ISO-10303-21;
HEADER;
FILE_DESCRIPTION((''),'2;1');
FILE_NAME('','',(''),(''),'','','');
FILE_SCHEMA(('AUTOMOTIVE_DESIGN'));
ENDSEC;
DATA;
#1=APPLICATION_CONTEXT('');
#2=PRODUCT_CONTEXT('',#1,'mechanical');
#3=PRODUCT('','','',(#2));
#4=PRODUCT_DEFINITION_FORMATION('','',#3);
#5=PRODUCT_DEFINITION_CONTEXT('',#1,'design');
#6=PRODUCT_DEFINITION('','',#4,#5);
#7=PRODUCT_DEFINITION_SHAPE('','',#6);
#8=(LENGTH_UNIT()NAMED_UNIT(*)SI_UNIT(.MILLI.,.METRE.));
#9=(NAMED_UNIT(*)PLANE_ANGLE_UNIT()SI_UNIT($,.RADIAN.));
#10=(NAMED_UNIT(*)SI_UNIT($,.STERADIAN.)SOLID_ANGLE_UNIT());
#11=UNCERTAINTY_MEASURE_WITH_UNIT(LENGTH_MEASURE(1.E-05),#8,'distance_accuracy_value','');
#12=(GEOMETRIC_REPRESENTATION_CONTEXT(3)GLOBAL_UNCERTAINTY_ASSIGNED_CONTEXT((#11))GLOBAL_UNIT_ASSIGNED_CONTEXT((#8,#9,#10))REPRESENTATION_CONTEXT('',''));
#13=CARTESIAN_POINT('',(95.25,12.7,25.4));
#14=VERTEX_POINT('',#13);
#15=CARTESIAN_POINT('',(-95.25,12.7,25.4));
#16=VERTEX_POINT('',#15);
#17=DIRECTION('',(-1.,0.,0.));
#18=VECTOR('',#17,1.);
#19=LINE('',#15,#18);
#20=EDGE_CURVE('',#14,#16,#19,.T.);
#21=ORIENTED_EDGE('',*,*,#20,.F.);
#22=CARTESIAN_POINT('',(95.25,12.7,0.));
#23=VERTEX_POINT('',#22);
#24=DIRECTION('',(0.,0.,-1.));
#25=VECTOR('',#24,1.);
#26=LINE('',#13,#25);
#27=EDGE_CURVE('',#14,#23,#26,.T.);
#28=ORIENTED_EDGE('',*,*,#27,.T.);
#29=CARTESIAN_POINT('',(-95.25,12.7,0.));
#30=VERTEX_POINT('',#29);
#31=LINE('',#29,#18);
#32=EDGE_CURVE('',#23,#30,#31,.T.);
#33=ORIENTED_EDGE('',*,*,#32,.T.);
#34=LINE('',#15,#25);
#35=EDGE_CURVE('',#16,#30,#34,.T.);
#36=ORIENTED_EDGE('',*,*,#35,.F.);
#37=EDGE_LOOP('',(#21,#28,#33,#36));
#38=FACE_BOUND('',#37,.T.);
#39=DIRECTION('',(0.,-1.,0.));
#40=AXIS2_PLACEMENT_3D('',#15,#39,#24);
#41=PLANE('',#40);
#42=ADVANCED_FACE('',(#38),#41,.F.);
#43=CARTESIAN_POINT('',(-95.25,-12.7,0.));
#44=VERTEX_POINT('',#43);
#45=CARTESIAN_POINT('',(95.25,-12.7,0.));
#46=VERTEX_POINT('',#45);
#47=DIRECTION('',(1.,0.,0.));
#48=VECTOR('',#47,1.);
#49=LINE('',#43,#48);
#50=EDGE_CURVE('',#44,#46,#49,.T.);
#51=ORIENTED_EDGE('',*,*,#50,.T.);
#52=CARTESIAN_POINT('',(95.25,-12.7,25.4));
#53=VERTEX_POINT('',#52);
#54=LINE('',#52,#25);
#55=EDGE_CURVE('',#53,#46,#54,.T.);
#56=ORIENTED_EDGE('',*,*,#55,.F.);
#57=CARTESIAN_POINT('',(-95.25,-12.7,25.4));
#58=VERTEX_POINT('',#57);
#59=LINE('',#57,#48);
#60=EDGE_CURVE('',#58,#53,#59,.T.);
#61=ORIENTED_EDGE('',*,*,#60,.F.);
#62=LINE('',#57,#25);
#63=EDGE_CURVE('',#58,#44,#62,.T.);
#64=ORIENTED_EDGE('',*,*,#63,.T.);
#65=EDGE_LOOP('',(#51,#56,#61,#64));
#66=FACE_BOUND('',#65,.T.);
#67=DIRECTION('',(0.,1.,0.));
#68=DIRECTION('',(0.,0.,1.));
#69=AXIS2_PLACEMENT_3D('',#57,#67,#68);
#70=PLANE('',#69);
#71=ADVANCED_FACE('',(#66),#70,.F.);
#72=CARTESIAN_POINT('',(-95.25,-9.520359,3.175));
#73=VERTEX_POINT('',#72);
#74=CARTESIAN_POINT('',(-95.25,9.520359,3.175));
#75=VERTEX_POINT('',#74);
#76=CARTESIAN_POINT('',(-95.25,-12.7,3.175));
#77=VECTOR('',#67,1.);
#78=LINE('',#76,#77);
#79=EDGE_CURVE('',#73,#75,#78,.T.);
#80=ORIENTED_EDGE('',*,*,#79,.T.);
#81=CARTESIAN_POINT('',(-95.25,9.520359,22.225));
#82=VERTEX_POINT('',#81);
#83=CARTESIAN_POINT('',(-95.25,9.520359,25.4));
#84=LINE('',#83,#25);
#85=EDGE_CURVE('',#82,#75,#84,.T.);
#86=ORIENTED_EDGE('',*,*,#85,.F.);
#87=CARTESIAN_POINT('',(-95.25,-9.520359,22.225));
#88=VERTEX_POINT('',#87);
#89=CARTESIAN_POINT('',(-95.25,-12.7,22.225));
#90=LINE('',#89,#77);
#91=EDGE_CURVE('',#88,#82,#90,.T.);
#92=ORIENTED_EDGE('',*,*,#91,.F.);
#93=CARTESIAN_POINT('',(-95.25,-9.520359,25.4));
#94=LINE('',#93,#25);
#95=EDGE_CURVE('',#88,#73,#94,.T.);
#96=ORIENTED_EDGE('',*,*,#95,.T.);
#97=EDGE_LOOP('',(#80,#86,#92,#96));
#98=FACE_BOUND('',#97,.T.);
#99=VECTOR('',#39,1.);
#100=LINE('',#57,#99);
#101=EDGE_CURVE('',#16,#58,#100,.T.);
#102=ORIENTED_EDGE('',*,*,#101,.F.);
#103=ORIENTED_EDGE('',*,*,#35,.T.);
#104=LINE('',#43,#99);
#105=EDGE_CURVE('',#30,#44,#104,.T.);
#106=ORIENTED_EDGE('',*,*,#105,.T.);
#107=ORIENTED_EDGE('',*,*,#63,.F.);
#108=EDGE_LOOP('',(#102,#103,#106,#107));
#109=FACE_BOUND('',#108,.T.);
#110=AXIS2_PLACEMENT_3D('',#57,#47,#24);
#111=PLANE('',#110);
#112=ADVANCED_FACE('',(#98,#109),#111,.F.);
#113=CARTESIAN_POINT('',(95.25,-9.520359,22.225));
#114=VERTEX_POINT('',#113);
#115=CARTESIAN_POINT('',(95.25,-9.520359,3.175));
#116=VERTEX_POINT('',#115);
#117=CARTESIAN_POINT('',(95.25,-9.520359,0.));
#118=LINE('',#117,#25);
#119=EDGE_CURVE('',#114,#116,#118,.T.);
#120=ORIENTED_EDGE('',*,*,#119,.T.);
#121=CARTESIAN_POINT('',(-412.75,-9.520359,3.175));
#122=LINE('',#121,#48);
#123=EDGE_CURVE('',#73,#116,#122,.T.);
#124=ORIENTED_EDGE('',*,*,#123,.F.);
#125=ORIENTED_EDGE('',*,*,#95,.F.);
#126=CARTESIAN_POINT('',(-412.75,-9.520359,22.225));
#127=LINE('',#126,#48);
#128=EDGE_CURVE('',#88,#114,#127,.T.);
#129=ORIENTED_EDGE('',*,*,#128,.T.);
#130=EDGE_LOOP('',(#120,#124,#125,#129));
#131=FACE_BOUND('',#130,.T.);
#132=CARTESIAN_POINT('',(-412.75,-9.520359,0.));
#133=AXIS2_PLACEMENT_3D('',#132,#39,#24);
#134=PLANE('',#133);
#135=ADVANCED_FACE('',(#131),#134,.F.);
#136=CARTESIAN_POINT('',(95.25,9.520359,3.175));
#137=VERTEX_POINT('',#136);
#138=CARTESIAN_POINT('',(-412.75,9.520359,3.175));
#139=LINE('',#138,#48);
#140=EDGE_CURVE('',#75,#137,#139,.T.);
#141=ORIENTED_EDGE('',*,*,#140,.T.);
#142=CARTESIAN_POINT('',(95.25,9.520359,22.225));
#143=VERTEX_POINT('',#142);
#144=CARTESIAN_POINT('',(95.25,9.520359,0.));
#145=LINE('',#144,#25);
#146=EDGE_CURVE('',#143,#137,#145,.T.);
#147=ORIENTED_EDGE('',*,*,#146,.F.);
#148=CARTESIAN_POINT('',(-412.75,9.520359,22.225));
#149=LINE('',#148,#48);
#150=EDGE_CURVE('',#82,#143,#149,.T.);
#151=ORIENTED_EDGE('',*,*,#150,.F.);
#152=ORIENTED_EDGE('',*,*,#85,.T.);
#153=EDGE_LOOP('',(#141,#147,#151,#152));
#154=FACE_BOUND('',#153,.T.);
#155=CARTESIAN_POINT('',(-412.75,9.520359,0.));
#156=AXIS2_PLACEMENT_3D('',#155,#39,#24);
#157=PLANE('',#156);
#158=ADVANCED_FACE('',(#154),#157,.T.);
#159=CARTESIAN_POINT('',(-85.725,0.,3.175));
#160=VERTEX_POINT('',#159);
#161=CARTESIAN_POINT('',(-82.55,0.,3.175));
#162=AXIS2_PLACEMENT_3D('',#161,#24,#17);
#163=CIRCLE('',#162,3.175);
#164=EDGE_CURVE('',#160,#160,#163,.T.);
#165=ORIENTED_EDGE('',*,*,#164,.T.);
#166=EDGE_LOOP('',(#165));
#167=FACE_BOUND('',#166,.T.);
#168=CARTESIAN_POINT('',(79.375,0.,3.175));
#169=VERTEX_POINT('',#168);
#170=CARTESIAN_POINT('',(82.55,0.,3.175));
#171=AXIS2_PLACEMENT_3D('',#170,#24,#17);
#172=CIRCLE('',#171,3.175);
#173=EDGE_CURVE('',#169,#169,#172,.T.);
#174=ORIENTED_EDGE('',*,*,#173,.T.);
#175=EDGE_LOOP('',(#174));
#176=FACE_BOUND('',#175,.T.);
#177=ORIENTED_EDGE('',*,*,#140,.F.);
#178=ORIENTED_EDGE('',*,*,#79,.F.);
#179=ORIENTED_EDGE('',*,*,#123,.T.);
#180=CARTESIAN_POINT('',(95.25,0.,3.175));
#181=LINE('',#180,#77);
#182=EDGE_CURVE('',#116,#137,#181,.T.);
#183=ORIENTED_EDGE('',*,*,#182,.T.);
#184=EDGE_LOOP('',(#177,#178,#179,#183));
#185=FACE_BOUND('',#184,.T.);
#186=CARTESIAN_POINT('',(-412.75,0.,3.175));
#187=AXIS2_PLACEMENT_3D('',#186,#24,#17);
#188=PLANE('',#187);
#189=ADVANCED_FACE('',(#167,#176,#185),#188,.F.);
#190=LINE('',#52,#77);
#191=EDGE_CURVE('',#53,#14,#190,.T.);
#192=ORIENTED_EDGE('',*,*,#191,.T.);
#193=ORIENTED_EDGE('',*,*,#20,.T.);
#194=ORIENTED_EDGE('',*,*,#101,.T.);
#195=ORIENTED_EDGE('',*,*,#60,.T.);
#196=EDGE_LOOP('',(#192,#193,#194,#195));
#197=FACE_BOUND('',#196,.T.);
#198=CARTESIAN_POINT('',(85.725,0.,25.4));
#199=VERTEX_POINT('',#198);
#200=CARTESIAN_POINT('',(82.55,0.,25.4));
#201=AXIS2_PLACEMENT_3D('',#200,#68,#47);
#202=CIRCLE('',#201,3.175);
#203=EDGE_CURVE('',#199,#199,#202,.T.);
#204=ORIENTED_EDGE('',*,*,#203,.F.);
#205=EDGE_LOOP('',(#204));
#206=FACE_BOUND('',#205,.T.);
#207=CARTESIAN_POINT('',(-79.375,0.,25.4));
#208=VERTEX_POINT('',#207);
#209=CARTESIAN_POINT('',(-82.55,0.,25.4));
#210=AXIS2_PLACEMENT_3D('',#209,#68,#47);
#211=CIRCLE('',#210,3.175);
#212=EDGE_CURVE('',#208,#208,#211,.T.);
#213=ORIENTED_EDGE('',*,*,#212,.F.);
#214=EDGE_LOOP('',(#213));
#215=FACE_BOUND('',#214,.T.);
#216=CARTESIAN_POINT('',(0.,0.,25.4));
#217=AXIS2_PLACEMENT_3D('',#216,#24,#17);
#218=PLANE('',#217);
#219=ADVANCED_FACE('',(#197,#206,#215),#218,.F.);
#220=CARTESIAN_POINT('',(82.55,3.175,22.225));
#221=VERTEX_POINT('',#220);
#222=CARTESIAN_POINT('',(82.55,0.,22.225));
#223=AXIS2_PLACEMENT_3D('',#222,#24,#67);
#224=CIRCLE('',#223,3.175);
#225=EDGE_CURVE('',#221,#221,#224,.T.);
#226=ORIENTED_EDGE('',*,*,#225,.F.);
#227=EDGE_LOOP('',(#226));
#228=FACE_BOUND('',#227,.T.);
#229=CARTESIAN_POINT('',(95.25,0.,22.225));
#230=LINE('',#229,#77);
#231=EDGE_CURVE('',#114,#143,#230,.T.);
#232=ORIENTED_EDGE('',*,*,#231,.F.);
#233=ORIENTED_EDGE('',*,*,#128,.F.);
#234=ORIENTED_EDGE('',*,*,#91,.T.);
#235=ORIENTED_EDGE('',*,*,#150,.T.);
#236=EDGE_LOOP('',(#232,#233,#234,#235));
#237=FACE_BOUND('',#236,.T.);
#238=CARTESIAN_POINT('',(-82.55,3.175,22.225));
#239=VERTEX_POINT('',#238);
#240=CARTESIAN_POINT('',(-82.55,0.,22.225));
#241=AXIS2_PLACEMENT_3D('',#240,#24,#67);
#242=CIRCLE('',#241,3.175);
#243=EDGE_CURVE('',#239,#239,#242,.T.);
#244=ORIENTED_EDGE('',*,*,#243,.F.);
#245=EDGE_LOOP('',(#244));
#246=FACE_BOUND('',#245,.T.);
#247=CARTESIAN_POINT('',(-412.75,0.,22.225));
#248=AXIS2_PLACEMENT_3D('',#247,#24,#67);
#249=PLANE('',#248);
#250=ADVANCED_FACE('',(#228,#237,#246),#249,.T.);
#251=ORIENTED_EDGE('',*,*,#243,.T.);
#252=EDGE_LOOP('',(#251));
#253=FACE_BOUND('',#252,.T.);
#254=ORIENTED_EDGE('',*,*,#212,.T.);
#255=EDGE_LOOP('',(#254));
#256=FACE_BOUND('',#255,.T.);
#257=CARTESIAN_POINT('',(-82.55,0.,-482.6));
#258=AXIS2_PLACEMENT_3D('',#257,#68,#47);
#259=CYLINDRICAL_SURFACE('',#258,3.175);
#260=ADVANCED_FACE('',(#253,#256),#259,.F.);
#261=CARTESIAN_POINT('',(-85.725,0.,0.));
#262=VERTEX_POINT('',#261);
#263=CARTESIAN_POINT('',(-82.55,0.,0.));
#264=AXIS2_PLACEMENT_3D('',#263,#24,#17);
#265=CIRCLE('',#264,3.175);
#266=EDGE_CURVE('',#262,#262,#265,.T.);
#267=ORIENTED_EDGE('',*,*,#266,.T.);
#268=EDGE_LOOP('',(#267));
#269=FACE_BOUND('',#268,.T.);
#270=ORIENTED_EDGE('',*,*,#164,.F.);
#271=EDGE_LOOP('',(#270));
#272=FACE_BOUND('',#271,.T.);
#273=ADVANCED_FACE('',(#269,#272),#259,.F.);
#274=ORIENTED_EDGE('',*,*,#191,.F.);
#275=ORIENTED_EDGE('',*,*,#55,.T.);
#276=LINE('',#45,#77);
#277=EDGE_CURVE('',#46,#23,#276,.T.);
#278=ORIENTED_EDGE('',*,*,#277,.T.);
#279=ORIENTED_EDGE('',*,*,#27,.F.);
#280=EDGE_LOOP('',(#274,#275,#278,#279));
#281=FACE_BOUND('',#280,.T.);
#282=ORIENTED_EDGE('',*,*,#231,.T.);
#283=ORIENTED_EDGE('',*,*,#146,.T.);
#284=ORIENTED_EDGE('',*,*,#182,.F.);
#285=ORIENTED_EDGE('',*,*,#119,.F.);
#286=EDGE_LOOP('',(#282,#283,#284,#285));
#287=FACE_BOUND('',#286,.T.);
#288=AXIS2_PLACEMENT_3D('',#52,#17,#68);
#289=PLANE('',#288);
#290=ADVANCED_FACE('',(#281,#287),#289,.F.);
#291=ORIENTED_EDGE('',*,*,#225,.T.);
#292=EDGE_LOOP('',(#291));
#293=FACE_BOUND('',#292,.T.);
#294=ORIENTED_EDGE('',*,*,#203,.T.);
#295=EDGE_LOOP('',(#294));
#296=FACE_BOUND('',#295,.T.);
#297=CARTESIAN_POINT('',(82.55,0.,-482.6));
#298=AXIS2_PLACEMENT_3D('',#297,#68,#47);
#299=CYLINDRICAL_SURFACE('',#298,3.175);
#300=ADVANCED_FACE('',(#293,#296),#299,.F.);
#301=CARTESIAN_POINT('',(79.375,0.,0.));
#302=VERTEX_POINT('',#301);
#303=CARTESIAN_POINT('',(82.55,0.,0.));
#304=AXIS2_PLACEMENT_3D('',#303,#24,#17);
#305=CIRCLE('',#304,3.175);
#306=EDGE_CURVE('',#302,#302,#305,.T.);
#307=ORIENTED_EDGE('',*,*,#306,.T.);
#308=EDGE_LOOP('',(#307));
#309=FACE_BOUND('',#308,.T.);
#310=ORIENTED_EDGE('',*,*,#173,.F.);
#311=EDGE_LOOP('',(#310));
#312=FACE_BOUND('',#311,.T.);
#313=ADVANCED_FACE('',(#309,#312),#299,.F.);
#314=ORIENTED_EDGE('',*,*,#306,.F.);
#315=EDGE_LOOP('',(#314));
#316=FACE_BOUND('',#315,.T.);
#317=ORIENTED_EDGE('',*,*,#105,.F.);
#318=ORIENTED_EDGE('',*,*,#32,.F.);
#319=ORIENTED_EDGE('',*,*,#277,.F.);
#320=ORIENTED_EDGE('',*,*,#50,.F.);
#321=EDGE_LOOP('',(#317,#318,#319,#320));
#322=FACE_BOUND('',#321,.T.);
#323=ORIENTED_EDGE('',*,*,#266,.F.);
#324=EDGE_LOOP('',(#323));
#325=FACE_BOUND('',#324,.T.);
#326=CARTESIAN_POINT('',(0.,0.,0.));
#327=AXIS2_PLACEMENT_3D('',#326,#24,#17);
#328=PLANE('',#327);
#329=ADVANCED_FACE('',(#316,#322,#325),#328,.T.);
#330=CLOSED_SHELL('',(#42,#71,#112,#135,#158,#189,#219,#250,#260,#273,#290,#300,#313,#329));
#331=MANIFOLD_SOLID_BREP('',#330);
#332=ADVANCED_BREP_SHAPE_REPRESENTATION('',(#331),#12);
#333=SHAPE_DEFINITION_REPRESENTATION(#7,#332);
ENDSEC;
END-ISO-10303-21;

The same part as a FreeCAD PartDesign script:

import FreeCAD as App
import Part
import Sketcher
Q = App.Units.Quantity


def add_polygon(sketch, points):
    """Adds a closed chain of lines whose ends are joined by coincident constraints."""
    first, n = sketch.GeometryCount, len(points)
    for a, b in zip(points, points[1:] + points[:1]):
        sketch.addGeometry(Part.LineSegment(App.Vector(*a, 0), App.Vector(*b, 0)), False)
    for i in range(n):
        sketch.addConstraint(Sketcher.Constraint("Coincident", first + i, 2, first + (i + 1) % n, 1))

doc = App.newDocument("Part")
params = doc.addObject("Spreadsheet::Sheet", "Params")
for row, (alias, value) in enumerate([
    ("sketch1_height", "1 in"),
    ("sketch1_width", "7.5 in"),
    ("pad1_length", "1 in"),
    ("sketch2_height", "0.75 in"),
    ("pocket1_length", "20 in"),
    ("sketch3_diameter", "0.25 in"),
    ("pocket2_length", "20 in"),
], start=1):
    params.set(f"A{row}", alias)
    params.set(f"B{row}", "=" + value)
    params.setAlias(f"B{row}", alias)

body = doc.addObject("PartDesign::Body", "Body")

# Sketch on XY plane
sketch1 = doc.addObject("Sketcher::SketchObject", "Sketch")
body.addObject(sketch1)
sketch1.AttachmentSupport = (doc.XY_Plane, [""])
sketch1.MapMode = "FlatFace"
add_polygon(sketch1, [(-95, 13), (-95, -13), (95, -13), (95, 13)])  # lines 0-3
sketch1.addConstraint([
    Sketcher.Constraint("Vertical", 0),
    Sketcher.Constraint("Horizontal", 1),
    Sketcher.Constraint("Vertical", 2),
    Sketcher.Constraint("Horizontal", 3),
    Sketcher.Constraint("Symmetric", 0, 2, 2, 2, -1, 1),
    Sketcher.Constraint("DistanceY", 0, 2, 0, 1, Q("1 in")),
    Sketcher.Constraint("DistanceX", 1, 1, 1, 2, Q("7.5 in")),
])
sketch1.setExpression("Constraints[9]", "Params.sketch1_height")
sketch1.setExpression("Constraints[10]", "Params.sketch1_width")
pad1 = doc.addObject("PartDesign::Pad", "Pad")
body.addObject(pad1)
pad1.Profile = sketch1
pad1.setExpression("Length", "Params.pad1_length")

# Sketch on YZ plane
sketch2 = doc.addObject("Sketcher::SketchObject", "Sketch001")
body.addObject(sketch2)
sketch2.AttachmentSupport = (doc.YZ_Plane, [""])
sketch2.MapMode = "FlatFace"
sketch2.AttachmentOffset = App.Placement(App.Vector(0, 0, 3.75 * 25.4), App.Rotation())
add_polygon(sketch2, [(10, 22), (-10, 22), (-10, 3), (10, 3)])  # lines 0-3
sketch2.addConstraint([
    Sketcher.Constraint("Horizontal", 0),
    Sketcher.Constraint("Vertical", 1),
    Sketcher.Constraint("Horizontal", 2),
    Sketcher.Constraint("Vertical", 3),
    Sketcher.Constraint("DistanceY", 1, 2, 1, 1, Q("0.75 in")),
    Sketcher.Constraint("DistanceY", -1, 1, 0, 2, Q("0.875 in")),
    Sketcher.Constraint("DistanceX", 0, 2, 0, 1, Q("19.040717 mm")),
    Sketcher.Constraint("DistanceX", 0, 2, -1, 1, Q("9.520359 mm")),
])
sketch2.setExpression("Constraints[8]", "Params.sketch2_height")
pocket1 = doc.addObject("PartDesign::Pocket", "Pocket")
body.addObject(pocket1)
pocket1.Profile = sketch2
pocket1.setExpression("Length", "Params.pocket1_length")

# Sketch on XY plane
sketch3 = doc.addObject("Sketcher::SketchObject", "Sketch002")
body.addObject(sketch3)
sketch3.AttachmentSupport = (doc.XY_Plane, [""])
sketch3.MapMode = "FlatFace"
sketch3.AttachmentOffset = App.Placement(App.Vector(0, 0, 1 * 25.4), App.Rotation())
sketch3.addGeometry([
    Part.Circle(App.Vector(-82.5, 0, 0), App.Vector(0, 0, 1), 3.2),
    Part.Circle(App.Vector(82.5, 0, 0), App.Vector(0, 0, 1), 3.2),
], False)
sketch3.addConstraint([
    Sketcher.Constraint("Equal", 0, 1),
    Sketcher.Constraint("Symmetric", 0, 3, 1, 3, -1, 1),
    Sketcher.Constraint("PointOnObject", 0, 3, -1),
    Sketcher.Constraint("Diameter", 0, Q("0.25 in")),
    Sketcher.Constraint("DistanceX", 0, 3, 1, 3, Q("6.5 in")),
])
sketch3.setExpression("Constraints[3]", "Params.sketch3_diameter")
pocket2 = doc.addObject("PartDesign::Pocket", "Pocket001")
body.addObject(pocket2)
pocket2.Profile = sketch3
pocket2.setExpression("Length", "Params.pocket2_length")

doc.recompute()
